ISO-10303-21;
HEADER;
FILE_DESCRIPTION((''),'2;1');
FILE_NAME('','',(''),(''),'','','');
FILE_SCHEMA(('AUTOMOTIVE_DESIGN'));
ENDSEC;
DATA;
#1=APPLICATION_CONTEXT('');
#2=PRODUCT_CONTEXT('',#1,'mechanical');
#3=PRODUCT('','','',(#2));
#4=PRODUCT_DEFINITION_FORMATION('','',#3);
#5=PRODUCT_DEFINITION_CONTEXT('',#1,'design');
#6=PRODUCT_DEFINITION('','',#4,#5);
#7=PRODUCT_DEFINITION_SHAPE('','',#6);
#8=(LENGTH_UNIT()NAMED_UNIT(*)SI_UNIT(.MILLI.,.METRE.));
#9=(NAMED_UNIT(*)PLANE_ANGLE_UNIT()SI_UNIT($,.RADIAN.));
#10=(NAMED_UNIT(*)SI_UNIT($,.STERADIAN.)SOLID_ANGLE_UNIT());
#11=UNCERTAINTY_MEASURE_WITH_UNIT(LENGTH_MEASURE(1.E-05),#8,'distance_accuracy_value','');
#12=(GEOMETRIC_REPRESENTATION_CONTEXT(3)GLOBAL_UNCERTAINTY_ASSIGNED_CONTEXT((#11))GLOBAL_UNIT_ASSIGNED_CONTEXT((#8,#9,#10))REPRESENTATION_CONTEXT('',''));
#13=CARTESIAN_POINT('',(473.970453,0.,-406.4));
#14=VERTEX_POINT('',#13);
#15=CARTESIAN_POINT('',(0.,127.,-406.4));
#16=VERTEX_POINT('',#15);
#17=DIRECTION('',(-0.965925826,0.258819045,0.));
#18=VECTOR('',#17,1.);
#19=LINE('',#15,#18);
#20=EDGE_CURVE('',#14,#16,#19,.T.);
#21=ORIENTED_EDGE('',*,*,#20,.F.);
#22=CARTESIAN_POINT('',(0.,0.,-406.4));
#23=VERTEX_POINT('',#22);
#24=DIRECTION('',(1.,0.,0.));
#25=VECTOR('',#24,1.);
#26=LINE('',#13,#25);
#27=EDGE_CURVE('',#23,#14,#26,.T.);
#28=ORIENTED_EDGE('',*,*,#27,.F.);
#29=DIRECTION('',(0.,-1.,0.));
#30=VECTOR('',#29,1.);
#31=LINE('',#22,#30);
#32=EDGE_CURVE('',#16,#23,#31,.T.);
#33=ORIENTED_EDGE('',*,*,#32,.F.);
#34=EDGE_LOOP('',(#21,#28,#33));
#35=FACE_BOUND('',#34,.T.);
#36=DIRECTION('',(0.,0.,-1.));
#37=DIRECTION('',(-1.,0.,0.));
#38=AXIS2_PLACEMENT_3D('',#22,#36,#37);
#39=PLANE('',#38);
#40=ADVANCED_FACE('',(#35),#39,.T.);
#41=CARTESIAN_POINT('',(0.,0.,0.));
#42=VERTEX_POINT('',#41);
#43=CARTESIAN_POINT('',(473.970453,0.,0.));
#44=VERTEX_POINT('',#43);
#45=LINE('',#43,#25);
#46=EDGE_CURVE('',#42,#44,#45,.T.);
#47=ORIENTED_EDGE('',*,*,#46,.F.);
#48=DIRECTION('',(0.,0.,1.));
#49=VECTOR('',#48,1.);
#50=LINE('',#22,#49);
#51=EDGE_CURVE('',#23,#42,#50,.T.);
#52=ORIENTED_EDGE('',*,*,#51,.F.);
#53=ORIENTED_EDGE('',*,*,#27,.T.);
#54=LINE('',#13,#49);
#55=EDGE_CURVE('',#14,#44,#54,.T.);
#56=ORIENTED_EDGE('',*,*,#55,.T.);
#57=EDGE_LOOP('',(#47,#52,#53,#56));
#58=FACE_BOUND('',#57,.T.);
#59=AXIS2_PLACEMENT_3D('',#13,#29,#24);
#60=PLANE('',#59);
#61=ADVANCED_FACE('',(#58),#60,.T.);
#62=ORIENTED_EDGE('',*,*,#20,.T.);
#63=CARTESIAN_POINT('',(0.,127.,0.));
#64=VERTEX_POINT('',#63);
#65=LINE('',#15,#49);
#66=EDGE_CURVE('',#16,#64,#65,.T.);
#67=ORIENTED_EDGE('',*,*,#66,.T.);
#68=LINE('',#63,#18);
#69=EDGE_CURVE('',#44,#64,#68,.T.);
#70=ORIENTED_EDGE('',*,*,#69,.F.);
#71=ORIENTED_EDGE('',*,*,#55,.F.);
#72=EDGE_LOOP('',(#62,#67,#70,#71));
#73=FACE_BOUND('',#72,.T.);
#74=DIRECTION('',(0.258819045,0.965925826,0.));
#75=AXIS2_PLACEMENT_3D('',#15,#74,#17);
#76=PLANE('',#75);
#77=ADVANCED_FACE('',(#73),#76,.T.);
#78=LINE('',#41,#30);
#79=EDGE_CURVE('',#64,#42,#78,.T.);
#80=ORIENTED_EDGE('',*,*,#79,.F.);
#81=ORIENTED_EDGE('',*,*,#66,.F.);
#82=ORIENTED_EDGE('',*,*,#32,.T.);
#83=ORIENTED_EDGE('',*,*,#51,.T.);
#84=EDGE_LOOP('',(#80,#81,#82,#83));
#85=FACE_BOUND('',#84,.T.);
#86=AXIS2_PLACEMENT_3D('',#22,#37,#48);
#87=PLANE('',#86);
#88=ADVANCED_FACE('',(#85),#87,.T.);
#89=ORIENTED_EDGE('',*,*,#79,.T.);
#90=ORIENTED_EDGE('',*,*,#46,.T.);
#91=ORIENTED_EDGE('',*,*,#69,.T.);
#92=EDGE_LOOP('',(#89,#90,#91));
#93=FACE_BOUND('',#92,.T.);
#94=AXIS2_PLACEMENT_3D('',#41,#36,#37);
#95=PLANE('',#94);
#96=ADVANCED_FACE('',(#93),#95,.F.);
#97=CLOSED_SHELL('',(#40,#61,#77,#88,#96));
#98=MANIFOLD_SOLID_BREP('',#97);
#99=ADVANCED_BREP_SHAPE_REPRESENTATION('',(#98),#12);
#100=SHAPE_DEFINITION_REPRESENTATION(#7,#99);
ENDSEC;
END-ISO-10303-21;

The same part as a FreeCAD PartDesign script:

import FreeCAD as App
import Part
import Sketcher

V = App.Vector
Q = App.Units.Quantity


def add_polygon(sketch, points):
    """Adds a closed chain of lines whose ends are joined by coincident constraints."""
    first, n = sketch.GeometryCount, len(points)
    for a, b in zip(points, points[1:] + points[:1]):
        sketch.addGeometry(Part.LineSegment(App.Vector(*a, 0), App.Vector(*b, 0)), False)
    for i in range(n):
        sketch.addConstraint(Sketcher.Constraint("Coincident", first + i, 2, first + (i + 1) % n, 1))

doc = App.newDocument("Part")
params = doc.addObject("Spreadsheet::Sheet", "Params")
for row, (alias, value) in enumerate([
    ("sketch1_height", "5 in"),
    ("pad1_length", "16 in"),
], start=1):
    params.set(f"A{row}", alias)
    params.set(f"B{row}", "=" + value)
    params.setAlias(f"B{row}", alias)

body = doc.addObject("PartDesign::Body", "Body")

sketch1 = doc.addObject("Sketcher::SketchObject", "Sketch")
body.addObject(sketch1)
sketch1.AttachmentSupport = (doc.XY_Plane, [""])
sketch1.MapMode = "FlatFace"
add_polygon(sketch1, [(0, 127), (0, 0), (474, 0)])
sketch1.addConstraint([
    Sketcher.Constraint("Vertical", 0),
    Sketcher.Constraint("Horizontal", 1),
    Sketcher.Constraint("Coincident", 0, 2, -1, 1),
    Sketcher.Constraint("DistanceY", 0, 2, 0, 1, Q("5 in")),
    Sketcher.Constraint("Angle", 2, Q("165 deg")),
])
sketch1.setExpression("Constraints[6]", "Params.sketch1_height")
pad1 = doc.addObject("PartDesign::Pad", "Pad")
body.addObject(pad1)
pad1.Profile = sketch1
pad1.setExpression("Length", "Params.pad1_length")
pad1.Reversed = True

doc.recompute()
